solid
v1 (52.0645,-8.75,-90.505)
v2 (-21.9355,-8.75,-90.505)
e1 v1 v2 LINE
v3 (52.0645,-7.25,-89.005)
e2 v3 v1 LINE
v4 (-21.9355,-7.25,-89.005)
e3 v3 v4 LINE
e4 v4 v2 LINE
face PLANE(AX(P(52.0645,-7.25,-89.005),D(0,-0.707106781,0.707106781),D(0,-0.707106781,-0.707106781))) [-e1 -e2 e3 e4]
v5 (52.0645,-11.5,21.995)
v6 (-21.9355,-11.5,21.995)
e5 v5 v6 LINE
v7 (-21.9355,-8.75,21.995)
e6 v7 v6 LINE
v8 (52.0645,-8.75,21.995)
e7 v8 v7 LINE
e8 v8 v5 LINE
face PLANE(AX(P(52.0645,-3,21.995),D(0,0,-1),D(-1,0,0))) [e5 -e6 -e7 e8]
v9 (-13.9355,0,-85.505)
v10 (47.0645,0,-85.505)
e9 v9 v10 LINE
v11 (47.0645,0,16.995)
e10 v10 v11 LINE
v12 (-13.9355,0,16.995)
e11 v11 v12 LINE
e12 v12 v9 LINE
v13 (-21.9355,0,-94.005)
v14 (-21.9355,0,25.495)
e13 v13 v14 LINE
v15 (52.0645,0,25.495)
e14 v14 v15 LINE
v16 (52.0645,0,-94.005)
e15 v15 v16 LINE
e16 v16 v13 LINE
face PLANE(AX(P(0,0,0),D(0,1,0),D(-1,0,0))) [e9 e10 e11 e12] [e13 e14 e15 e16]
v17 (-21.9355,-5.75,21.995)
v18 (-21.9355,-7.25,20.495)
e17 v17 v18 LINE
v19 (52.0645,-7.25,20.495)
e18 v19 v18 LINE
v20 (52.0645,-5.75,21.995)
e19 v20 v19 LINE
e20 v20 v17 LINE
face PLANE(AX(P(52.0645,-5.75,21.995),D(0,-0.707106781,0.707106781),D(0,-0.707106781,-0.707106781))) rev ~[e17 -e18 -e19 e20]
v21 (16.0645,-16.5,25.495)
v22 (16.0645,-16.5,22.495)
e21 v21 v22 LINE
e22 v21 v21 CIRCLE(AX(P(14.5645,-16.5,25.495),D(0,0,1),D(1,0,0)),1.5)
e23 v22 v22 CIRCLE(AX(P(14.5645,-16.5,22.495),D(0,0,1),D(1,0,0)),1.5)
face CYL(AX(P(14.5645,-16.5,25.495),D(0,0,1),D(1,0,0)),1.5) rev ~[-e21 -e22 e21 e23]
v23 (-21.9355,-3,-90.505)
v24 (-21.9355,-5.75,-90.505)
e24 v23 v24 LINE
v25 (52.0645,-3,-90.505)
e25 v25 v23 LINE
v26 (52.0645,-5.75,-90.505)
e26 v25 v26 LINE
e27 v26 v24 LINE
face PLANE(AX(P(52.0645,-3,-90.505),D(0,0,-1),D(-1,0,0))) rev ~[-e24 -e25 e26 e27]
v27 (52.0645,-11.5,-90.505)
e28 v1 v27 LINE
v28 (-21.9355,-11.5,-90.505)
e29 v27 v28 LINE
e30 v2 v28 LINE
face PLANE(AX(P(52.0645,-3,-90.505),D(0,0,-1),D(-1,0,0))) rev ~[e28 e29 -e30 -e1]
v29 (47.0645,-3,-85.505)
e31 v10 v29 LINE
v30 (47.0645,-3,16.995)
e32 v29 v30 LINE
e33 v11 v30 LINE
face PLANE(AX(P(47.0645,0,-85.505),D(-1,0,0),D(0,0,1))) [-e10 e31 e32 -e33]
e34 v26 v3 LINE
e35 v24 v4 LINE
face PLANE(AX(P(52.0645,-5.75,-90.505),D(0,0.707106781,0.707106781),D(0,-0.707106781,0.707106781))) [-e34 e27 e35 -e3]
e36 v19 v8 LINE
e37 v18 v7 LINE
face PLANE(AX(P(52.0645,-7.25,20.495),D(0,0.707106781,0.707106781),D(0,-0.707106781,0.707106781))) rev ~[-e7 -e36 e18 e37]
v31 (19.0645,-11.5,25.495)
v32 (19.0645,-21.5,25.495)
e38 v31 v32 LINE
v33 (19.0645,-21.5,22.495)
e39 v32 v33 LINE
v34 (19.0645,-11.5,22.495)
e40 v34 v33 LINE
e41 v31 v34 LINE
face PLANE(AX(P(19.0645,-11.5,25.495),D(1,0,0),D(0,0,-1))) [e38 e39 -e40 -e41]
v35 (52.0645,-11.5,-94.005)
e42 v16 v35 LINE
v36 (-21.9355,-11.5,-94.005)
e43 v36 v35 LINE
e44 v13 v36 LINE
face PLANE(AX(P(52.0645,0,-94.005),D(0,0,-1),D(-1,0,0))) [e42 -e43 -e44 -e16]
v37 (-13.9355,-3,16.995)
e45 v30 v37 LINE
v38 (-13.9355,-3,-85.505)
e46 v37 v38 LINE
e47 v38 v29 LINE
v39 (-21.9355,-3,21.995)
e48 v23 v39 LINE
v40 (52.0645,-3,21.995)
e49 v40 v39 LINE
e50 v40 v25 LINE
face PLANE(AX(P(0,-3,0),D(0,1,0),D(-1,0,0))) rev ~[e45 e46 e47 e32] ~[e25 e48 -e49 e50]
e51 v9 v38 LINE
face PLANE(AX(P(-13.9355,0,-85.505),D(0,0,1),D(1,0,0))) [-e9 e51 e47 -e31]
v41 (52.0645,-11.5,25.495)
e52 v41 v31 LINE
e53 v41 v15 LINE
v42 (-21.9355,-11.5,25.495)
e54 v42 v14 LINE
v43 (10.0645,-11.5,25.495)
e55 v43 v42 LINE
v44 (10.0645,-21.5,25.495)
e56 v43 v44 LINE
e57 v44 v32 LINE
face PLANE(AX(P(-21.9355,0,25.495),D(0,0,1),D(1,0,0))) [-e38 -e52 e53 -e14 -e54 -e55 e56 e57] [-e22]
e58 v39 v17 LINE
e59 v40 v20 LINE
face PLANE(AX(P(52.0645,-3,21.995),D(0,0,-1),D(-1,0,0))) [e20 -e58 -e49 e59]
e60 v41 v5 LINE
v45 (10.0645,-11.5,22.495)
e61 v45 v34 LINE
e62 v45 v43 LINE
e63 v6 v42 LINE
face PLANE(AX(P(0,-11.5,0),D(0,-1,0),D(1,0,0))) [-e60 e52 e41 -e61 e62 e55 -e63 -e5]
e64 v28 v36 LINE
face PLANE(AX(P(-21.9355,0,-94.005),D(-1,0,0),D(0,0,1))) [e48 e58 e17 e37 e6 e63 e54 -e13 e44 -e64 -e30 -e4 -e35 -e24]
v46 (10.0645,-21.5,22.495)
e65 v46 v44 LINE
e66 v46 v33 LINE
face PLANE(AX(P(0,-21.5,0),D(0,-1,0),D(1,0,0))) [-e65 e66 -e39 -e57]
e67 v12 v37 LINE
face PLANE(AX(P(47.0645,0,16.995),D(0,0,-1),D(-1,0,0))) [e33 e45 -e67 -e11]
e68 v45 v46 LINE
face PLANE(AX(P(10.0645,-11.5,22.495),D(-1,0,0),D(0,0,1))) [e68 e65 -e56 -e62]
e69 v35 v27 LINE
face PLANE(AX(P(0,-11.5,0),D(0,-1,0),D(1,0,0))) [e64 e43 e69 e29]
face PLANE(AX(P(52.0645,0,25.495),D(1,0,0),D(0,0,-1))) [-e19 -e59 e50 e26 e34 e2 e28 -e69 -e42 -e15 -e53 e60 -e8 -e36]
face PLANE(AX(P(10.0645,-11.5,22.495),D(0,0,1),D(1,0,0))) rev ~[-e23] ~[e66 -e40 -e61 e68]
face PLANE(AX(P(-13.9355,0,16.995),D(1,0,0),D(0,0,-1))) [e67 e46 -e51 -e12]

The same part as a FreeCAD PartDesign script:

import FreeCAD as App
import Part
import Sketcher
from FreeCAD import Vector
Q = App.Units.Quantity


def add_polygon(sketch, points):
    """Adds a closed chain of lines whose ends are joined by coincident constraints."""
    first, n = sketch.GeometryCount, len(points)
    for a, b in zip(points, points[1:] + points[:1]):
        sketch.addGeometry(Part.LineSegment(App.Vector(*a, 0), App.Vector(*b, 0)), False)
    for i in range(n):
        sketch.addConstraint(Sketcher.Constraint("Coincident", first + i, 2, first + (i + 1) % n, 1))

doc = App.newDocument("Part")
body = doc.addObject("PartDesign::Body", "Body")

# Sketch on XZ plane
sketch1 = doc.addObject("Sketcher::SketchObject", "Sketch")
body.addObject(sketch1)
sketch1.AttachmentSupport = (doc.XZ_Plane, [""])
sketch1.MapMode = "FlatFace"
add_polygon(sketch1, [(-21.9355, -94.005), (-21.9355, 25.495), (52.0645, 25.495), (52.0645, -94.005)])  # lines 0-3
sketch1.addConstraint([
    Sketcher.Constraint("Vertical", 0),
    Sketcher.Constraint("Horizontal", 1),
    Sketcher.Constraint("Vertical", 2),
    Sketcher.Constraint("Horizontal", 3),
    Sketcher.Constraint("DistanceX", 1, 1, 1, 2, Q("74 mm")),
    Sketcher.Constraint("DistanceY", 0, 1, 0, 2, Q("119.5 mm")),
    Sketcher.Constraint("DistanceY", -1, 1, 0, 2, Q("25.495 mm")),
    Sketcher.Constraint("DistanceX", 0, 2, -1, 1, Q("21.9355 mm")),
])
pad1 = doc.addObject("PartDesign::Pad", "Pad")
body.addObject(pad1)
pad1.Profile = sketch1
pad1.Length = 3

# Sketch on XZ plane
sketch2 = doc.addObject("Sketcher::SketchObject", "Sketch001")
body.addObject(sketch2)
sketch2.AttachmentSupport = (doc.XZ_Plane, [""])
sketch2.MapMode = "FlatFace"
add_polygon(sketch2, [(-13.9355, -85.505), (-13.9355, 16.995), (47.0645, 16.995), (47.0645, -85.505)])  # lines 0-3
sketch2.addConstraint([
    Sketcher.Constraint("Vertical", 0),
    Sketcher.Constraint("Horizontal", 1),
    Sketcher.Constraint("Vertical", 2),
    Sketcher.Constraint("Horizontal", 3),
    Sketcher.Constraint("DistanceX", 1, 1, 1, 2, Q("61 mm")),
    Sketcher.Constraint("DistanceY", 0, 1, 0, 2, Q("102.5 mm")),
    Sketcher.Constraint("DistanceY", -1, 1, 0, 2, Q("16.995 mm")),
    Sketcher.Constraint("DistanceX", 0, 2, -1, 1, Q("13.9355 mm")),
])
pocket1 = doc.addObject("PartDesign::Pocket", "Pocket")
body.addObject(pocket1)
pocket1.Profile = sketch2
pocket1.Length = 3
pocket1.Reversed = True

# Sketch on XZ plane
sketch3 = doc.addObject("Sketcher::SketchObject", "Sketch002")
body.addObject(sketch3)
sketch3.AttachmentSupport = (doc.XZ_Plane, [""])
sketch3.MapMode = "FlatFace"
sketch3.AttachmentOffset = App.Placement(Vector(0, 0, 3), App.Rotation())
add_polygon(sketch3, [(52.0645, 21.995), (52.0645, 25.495), (-21.9355, 25.495), (-21.9355, 21.995)])  # lines 0-3
add_polygon(sketch3, [(52.0645, -94.005), (52.0645, -90.505), (-21.9355, -90.505), (-21.9355, -94.005)])  # lines 4-7
sketch3.addConstraint([
    Sketcher.Constraint("Vertical", 0),
    Sketcher.Constraint("Horizontal", 1),
    Sketcher.Constraint("Vertical", 2),
    Sketcher.Constraint("Horizontal", 3),
    Sketcher.Constraint("Vertical", 4),
    Sketcher.Constraint("Horizontal", 5),
    Sketcher.Constraint("Vertical", 6),
    Sketcher.Constraint("Horizontal", 7),
    Sketcher.Constraint("Vertical", 3, 2, 4, 2),
    Sketcher.Constraint("Vertical", 2, 2, 5, 2),
    Sketcher.Constraint("Equal", 2, 4),
    Sketcher.Constraint("DistanceX", 1, 2, 1, 1, Q("74 mm")),
    Sketcher.Constraint("DistanceY", 0, 1, 0, 2, Q("3.5 mm")),
    Sketcher.Constraint("DistanceY", 4, 2, 0, 2, Q("116 mm")),
    Sketcher.Constraint("DistanceY", -1, 1, 0, 2, Q("25.495 mm")),
    Sketcher.Constraint("DistanceX", -1, 1, 0, 2, Q("52.0645 mm")),
])
pad2 = doc.addObject("PartDesign::Pad", "Pad001")
body.addObject(pad2)
pad2.Profile = sketch3
pad2.Length = 8.5

# Sketch on YZ plane
sketch4 = doc.addObject("Sketcher::SketchObject", "Sketch003")
body.addObject(sketch4)
sketch4.AttachmentSupport = (doc.YZ_Plane, [""])
sketch4.MapMode = "FlatFace"
sketch4.AttachmentOffset = App.Placement(Vector(0, 0, 52.0645), App.Rotation())
add_polygon(sketch4, [(-7.25, 20.495), (-5.75, 21.995), (-8.75, 21.995)])  # lines 0-2
add_polygon(sketch4, [(-8.75, -90.505), (-5.75, -90.505), (-7.25, -89.005)])  # lines 3-5
sketch4.addConstraint([
    Sketcher.Constraint("Horizontal", 1),
    Sketcher.Constraint("Horizontal", 3),
    Sketcher.Constraint("Perpendicular", 0, 2),
    Sketcher.Constraint("Parallel", 2, 4),
    Sketcher.Constraint("Perpendicular", 4, 5),
    Sketcher.Constraint("Vertical", 0, 2, 3, 2),
    Sketcher.Constraint("Vertical", 2, 2, 4, 2),
    Sketcher.Constraint("Vertical", 1, 2, 5, 2),
    Sketcher.Constraint("DistanceX", 2, 2, 0, 2, Q("1.5 mm")),
    Sketcher.Constraint("DistanceY", 3, 2, 2, 2, Q("111 mm")),
    Sketcher.Constraint("DistanceX", 0, 2, -1, 1, Q("5.75 mm")),
    Sketcher.Constraint("DistanceY", -1, 1, 0, 2, Q("21.995 mm")),
])
pad3 = doc.addObject("PartDesign::Pad", "Pad002")
body.addObject(pad3)
pad3.Profile = sketch4
pad3.Length = 74
pad3.Reversed = True

# Sketch on XZ plane
sketch5 = doc.addObject("Sketcher::SketchObject", "Sketch004")
body.addObject(sketch5)
sketch5.AttachmentSupport = (doc.XZ_Plane, [""])
sketch5.MapMode = "FlatFace"
sketch5.AttachmentOffset = App.Placement(Vector(0, 0, 11.5), App.Rotation())
add_polygon(sketch5, [(19.0645, 25.495), (10.0645, 25.495), (10.0645, 22.495), (19.0645, 22.495)])  # lines 0-3
sketch5.addConstraint([
    Sketcher.Constraint("Horizontal", 0),
    Sketcher.Constraint("Vertical", 1),
    Sketcher.Constraint("Horizontal", 2),
    Sketcher.Constraint("Vertical", 3),
    Sketcher.Constraint("DistanceX", 0, 2, 0, 1, Q("9 mm")),
    Sketcher.Constraint("DistanceY", 1, 2, 1, 1, Q("3 mm")),
    Sketcher.Constraint("DistanceY", -1, 1, 0, 2, Q("25.495 mm")),
    Sketcher.Constraint("DistanceX", -1, 1, 0, 2, Q("10.0645 mm")),
])
pad4 = doc.addObject("PartDesign::Pad", "Pad003")
body.addObject(pad4)
pad4.Profile = sketch5
pad4.Length = 10

# Sketch on XY plane
sketch6 = doc.addObject("Sketcher::SketchObject", "Sketch005")
body.addObject(sketch6)
sketch6.AttachmentSupport = (doc.XY_Plane, [""])
sketch6.MapMode = "FlatFace"
sketch6.AttachmentOffset = App.Placement(Vector(0, 0, 25.495), App.Rotation())
sketch6.addGeometry(Part.Circle(Vector(14.5645, -16.5, 0), Vector(0, 0, 1), 1.5), False)
sketch6.addConstraint([
    Sketcher.Constraint("Diameter", 0, Q("3 mm")),
    Sketcher.Constraint("DistanceY", 0, 3, -1, 1, Q("16.5 mm")),
    Sketcher.Constraint("DistanceX", -1, 1, 0, 3, Q("14.5645 mm")),
])
pocket2 = doc.addObject("PartDesign::Pocket", "Pocket001")
body.addObject(pocket2)
pocket2.Profile = sketch6
pocket2.Length = 10

doc.recompute()
